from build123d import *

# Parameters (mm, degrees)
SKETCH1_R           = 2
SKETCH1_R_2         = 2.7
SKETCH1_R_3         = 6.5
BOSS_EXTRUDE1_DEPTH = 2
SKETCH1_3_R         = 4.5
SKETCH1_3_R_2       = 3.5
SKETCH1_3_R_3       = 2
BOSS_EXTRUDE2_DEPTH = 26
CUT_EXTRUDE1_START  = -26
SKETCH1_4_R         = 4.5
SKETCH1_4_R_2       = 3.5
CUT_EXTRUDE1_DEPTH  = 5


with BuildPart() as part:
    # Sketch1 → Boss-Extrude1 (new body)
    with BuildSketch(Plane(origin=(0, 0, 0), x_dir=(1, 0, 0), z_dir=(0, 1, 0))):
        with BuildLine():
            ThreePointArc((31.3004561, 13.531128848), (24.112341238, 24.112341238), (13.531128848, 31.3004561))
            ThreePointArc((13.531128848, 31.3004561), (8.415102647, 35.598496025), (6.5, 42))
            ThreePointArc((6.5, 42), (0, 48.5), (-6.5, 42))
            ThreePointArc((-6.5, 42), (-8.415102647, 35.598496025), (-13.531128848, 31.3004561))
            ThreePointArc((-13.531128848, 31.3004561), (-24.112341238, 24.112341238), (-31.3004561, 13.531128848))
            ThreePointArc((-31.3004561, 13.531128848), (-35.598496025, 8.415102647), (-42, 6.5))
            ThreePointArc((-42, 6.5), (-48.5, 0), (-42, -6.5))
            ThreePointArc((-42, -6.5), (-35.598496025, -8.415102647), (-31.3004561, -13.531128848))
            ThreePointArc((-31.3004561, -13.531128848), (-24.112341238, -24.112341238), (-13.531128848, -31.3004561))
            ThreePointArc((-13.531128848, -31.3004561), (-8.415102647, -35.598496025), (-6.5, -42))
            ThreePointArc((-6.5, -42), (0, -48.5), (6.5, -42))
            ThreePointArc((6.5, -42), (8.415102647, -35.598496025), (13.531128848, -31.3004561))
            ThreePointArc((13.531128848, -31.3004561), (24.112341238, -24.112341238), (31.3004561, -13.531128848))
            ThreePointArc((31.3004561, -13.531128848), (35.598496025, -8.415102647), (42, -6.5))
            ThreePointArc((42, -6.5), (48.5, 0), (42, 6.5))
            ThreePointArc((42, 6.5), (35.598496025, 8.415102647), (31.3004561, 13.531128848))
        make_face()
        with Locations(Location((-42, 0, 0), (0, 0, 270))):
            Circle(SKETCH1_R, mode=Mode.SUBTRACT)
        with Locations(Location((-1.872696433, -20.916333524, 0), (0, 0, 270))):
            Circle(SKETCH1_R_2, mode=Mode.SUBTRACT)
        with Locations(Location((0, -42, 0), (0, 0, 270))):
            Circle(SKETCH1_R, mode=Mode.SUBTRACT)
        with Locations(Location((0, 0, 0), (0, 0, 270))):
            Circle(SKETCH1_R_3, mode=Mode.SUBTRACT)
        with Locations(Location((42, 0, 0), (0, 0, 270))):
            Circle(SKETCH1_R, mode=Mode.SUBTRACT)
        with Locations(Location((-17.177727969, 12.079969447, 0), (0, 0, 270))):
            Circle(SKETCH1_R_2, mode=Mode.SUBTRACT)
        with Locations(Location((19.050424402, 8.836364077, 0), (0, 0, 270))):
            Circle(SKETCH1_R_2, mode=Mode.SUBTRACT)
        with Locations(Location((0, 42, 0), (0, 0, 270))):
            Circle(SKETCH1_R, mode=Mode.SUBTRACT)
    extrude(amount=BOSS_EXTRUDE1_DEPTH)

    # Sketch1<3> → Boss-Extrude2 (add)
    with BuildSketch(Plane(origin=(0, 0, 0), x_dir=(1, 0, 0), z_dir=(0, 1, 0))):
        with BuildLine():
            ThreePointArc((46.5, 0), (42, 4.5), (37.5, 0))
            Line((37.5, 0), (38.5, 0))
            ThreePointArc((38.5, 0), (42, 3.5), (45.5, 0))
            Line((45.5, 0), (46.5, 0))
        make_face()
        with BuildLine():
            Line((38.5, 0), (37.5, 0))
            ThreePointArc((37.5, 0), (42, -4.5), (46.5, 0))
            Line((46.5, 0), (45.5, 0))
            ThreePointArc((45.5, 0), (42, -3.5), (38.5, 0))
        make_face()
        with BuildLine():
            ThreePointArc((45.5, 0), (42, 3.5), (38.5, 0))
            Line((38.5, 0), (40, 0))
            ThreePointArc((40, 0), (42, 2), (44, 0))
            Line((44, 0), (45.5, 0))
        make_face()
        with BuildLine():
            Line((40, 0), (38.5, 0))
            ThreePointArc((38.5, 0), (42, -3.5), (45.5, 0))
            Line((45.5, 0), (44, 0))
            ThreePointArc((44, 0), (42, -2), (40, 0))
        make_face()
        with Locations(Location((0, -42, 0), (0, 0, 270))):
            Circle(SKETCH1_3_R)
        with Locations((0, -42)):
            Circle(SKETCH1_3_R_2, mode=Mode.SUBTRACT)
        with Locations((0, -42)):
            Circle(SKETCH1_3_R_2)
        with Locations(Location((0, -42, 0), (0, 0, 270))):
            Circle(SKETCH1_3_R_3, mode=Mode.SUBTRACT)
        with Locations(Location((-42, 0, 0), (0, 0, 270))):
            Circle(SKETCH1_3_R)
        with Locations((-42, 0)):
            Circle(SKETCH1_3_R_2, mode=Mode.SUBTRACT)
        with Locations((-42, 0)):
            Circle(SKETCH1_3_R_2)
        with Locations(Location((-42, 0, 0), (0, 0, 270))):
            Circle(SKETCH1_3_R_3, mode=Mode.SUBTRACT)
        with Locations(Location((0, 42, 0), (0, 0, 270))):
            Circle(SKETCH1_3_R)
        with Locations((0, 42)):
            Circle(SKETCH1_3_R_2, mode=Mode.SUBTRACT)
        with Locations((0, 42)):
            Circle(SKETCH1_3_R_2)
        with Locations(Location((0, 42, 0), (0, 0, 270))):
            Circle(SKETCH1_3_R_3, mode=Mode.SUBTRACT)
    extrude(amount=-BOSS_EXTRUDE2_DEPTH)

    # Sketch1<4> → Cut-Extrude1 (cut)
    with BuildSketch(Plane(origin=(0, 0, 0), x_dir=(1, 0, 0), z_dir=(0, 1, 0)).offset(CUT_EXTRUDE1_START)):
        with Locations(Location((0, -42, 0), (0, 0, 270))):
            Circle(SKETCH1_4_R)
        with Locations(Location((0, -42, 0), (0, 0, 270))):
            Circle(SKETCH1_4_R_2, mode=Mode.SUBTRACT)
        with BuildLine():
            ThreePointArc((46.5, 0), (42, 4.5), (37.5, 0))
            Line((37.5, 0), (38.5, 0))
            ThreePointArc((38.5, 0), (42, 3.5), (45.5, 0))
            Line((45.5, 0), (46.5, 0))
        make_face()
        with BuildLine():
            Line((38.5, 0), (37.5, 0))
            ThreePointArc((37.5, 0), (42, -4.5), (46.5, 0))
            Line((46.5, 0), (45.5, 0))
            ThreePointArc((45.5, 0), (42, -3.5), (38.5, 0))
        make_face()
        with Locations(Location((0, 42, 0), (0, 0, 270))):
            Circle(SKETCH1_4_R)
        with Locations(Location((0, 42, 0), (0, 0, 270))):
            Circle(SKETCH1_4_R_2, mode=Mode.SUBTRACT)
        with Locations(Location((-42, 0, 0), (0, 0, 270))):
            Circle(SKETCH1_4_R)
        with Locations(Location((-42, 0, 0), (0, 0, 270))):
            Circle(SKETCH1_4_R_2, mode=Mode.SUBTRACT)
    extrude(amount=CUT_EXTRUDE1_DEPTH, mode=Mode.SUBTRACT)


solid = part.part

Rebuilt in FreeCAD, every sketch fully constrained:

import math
import FreeCAD as App
import Part
import Sketcher
from FreeCAD import Vector
Q = App.Units.Quantity

doc = App.newDocument("Part")
body = doc.addObject("PartDesign::Body", "Body")

sketch1 = body.newObject("Sketcher::SketchObject", "Sketch")
sketch1.AttachmentSupport = (doc.getObject("XZ_Plane"), [""])
sketch1.MapMode = "FlatFace"
sketch1.addGeometry([
    Part.ArcOfCircle(Part.Circle(Vector(0, 0, 0), Vector(0, 0, 1), 34.1), math.radians(-66.621262), math.radians(-23.378738)),
    Part.ArcOfCircle(Part.Circle(Vector(18.156522, -42, 0), Vector(0, 0, 1), 11.656522), math.radians(113.378738), math.radians(180)),
    Part.ArcOfCircle(Part.Circle(Vector(0, -42, 0), Vector(0, 0, 1), 6.5), math.radians(180), math.radians(360)),
    Part.ArcOfCircle(Part.Circle(Vector(-18.156522, -42, 0), Vector(0, 0, 1), 11.656522), math.radians(0), math.radians(66.621262)),
    Part.ArcOfCircle(Part.Circle(Vector(0, 0, 0), Vector(0, 0, 1), 34.1), math.radians(-156.621262), math.radians(-113.378738)),
    Part.ArcOfCircle(Part.Circle(Vector(-42, -18.156522, 0), Vector(0, 0, 1), 11.656522), math.radians(23.378738), math.radians(90)),
    Part.ArcOfCircle(Part.Circle(Vector(-42, 0, 0), Vector(0, 0, 1), 6.5), math.radians(90), math.radians(270)),
    Part.ArcOfCircle(Part.Circle(Vector(-42, 18.156522, 0), Vector(0, 0, 1), 11.656522), math.radians(-90), math.radians(-23.378738)),
    Part.ArcOfCircle(Part.Circle(Vector(0, 0, 0), Vector(0, 0, 1), 34.1), math.radians(113.378738), math.radians(156.621262)),
    Part.ArcOfCircle(Part.Circle(Vector(-18.156522, 42, 0), Vector(0, 0, 1), 11.656522), math.radians(-66.621262), math.radians(0)),
    Part.ArcOfCircle(Part.Circle(Vector(0, 42, 0), Vector(0, 0, 1), 6.5), math.radians(0), math.radians(180)),
    Part.ArcOfCircle(Part.Circle(Vector(18.156522, 42, 0), Vector(0, 0, 1), 11.656522), math.radians(180), math.radians(246.621262)),
    Part.ArcOfCircle(Part.Circle(Vector(0, 0, 0), Vector(0, 0, 1), 34.1), math.radians(23.378738), math.radians(66.621262)),
    Part.ArcOfCircle(Part.Circle(Vector(42, 18.156522, 0), Vector(0, 0, 1), 11.656522), math.radians(-156.621262), math.radians(-90)),
    Part.ArcOfCircle(Part.Circle(Vector(42, 0, 0), Vector(0, 0, 1), 6.5), math.radians(-90), math.radians(90)),
    Part.ArcOfCircle(Part.Circle(Vector(42, -18.156522, 0), Vector(0, 0, 1), 11.656522), math.radians(90), math.radians(156.621262)),
    Part.Circle(Vector(-1.872696, 20.916334, 0), Vector(0, 0, 1), 2.7),
    Part.Circle(Vector(0, 42, 0), Vector(0, 0, 1), 2),
    Part.Circle(Vector(-42, 0, 0), Vector(0, 0, 1), 2),
    Part.Circle(Vector(-17.177728, -12.079969, 0), Vector(0, 0, 1), 2.7),
    Part.Circle(Vector(0, 0, 0), Vector(0, 0, 1), 6.5),
    Part.Circle(Vector(19.050424, -8.836364, 0), Vector(0, 0, 1), 2.7),
    Part.Circle(Vector(42, 0, 0), Vector(0, 0, 1), 2),
    Part.Circle(Vector(0, -42, 0), Vector(0, 0, 1), 2),
], False)
sketch1.addConstraint([
    Sketcher.Constraint("Tangent", 0, 1, 1, 1),
    Sketcher.Constraint("Tangent", 1, 2, 2, 2),
    Sketcher.Constraint("Tangent", 2, 1, 3, 1),
    Sketcher.Constraint("Tangent", 3, 2, 4, 2),
    Sketcher.Constraint("Tangent", 4, 1, 5, 1),
    Sketcher.Constraint("Tangent", 5, 2, 6, 2),
    Sketcher.Constraint("Tangent", 6, 1, 7, 1),
    Sketcher.Constraint("Tangent", 7, 2, 8, 2),
    Sketcher.Constraint("Tangent", 8, 1, 9, 1),
    Sketcher.Constraint("Tangent", 9, 2, 10, 2),
    Sketcher.Constraint("Tangent", 10, 1, 11, 1),
    Sketcher.Constraint("Tangent", 11, 2, 12, 2),
    Sketcher.Constraint("Tangent", 12, 1, 13, 1),
    Sketcher.Constraint("Tangent", 13, 2, 14, 2),
    Sketcher.Constraint("Tangent", 14, 1, 15, 1),
    Sketcher.Constraint("Tangent", 15, 2, 0, 2),
    Sketcher.Constraint("Coincident", 0, 3, -1, 1),
    Sketcher.Constraint("Coincident", 4, 3, -1, 1),
    Sketcher.Constraint("Coincident", 8, 3, -1, 1),
    Sketcher.Constraint("Coincident", 12, 3, -1, 1),
    Sketcher.Constraint("Coincident", 20, 3, -1, 1),
    Sketcher.Constraint("Coincident", 17, 3, 10, 3),
    Sketcher.Constraint("Coincident", 18, 3, 6, 3),
    Sketcher.Constraint("Coincident", 22, 3, 14, 3),
    Sketcher.Constraint("Coincident", 23, 3, 2, 3),
    Sketcher.Constraint("Equal", 1, 3),
    Sketcher.Constraint("Equal", 0, 4),
    Sketcher.Constraint("Equal", 3, 5),
    Sketcher.Constraint("Equal", 2, 6),
    Sketcher.Constraint("Equal", 5, 7),
    Sketcher.Constraint("Equal", 4, 8),
    Sketcher.Constraint("Equal", 7, 9),
    Sketcher.Constraint("Equal", 6, 10),
    Sketcher.Constraint("Equal", 9, 11),
    Sketcher.Constraint("Equal", 8, 12),
    Sketcher.Constraint("Equal", 11, 13),
    Sketcher.Constraint("Equal", 10, 14),
    Sketcher.Constraint("Equal", 13, 15),
    Sketcher.Constraint("Equal", 17, 18),
    Sketcher.Constraint("Equal", 16, 19),
    Sketcher.Constraint("Equal", 14, 20),
    Sketcher.Constraint("Equal", 19, 21),
    Sketcher.Constraint("Equal", 18, 22),
    Sketcher.Constraint("Equal", 22, 23),
    Sketcher.Constraint("Symmetric", 2, 3, 10, 3, -1, 1),
    Sketcher.Constraint("Symmetric", 6, 3, 14, 3, -1, 1),
    Sketcher.Constraint("PointOnObject", 2, 3, -2),
    Sketcher.Constraint("PointOnObject", 6, 3, -1),
    Sketcher.Constraint("Horizontal", 1, 3, 2, 3),
    Sketcher.Constraint("Vertical", 5, 3, 6, 3),
    Sketcher.Constraint("Diameter", 17, Q("4 mm")),
    Sketcher.Constraint("Diameter", 20, Q("13 mm")),
    Sketcher.Constraint("Diameter", 16, Q("5.4 mm")),
    Sketcher.Constraint("Radius", 0, Q("34.1 mm")),
    Sketcher.Constraint("DistanceY", 1, 3, -1, 1, Q("42 mm")),
    Sketcher.Constraint("DistanceX", 19, 3, 3, 2, Q("3.646599 mm")),
    Sketcher.Constraint("DistanceY", 19, 3, -1, 1, Q("12.079969 mm")),
    Sketcher.Constraint("DistanceX", 21, 3, 12, 1, Q("12.250032 mm")),
    Sketcher.Constraint("DistanceX", 16, 3, -1, 1, Q("1.872696 mm")),
    Sketcher.Constraint("DistanceY", -1, 1, 16, 3, Q("20.916334 mm")),
    Sketcher.Constraint("DistanceY", 21, 3, -1, 1, Q("8.836364 mm")),
])
pad1 = body.newObject("PartDesign::Pad", "Pad")
pad1.Profile = sketch1
pad1.Length = 2
pad1.Reversed = True

sketch2 = body.newObject("Sketcher::SketchObject", "Sketch001")
sketch2.AttachmentSupport = (doc.getObject("XZ_Plane"), [""])
sketch2.MapMode = "FlatFace"
sketch2.addGeometry([
    Part.Circle(Vector(42, 0, 0), Vector(0, 0, 1), 4.5),
    Part.Circle(Vector(42, 0, 0), Vector(0, 0, 1), 2),
    Part.Circle(Vector(0, 42, 0), Vector(0, 0, 1), 4.5),
    Part.Circle(Vector(0, 42, 0), Vector(0, 0, 1), 2),
    Part.Circle(Vector(-42, 0, 0), Vector(0, 0, 1), 4.5),
    Part.Circle(Vector(-42, 0, 0), Vector(0, 0, 1), 2),
    Part.Circle(Vector(0, -42, 0), Vector(0, 0, 1), 4.5),
    Part.Circle(Vector(0, -42, 0), Vector(0, 0, 1), 2),
], False)
sketch2.addConstraint([
    Sketcher.Constraint("Coincident", 1, 3, 0, 3),
    Sketcher.Constraint("Coincident", 3, 3, 2, 3),
    Sketcher.Constraint("Coincident", 5, 3, 4, 3),
    Sketcher.Constraint("Coincident", 7, 3, 6, 3),
    Sketcher.Constraint("Equal", 0, 2),
    Sketcher.Constraint("Equal", 1, 3),
    Sketcher.Constraint("Equal", 2, 4),
    Sketcher.Constraint("Equal", 3, 5),
    Sketcher.Constraint("Equal", 4, 6),
    Sketcher.Constraint("Equal", 5, 7),
    Sketcher.Constraint("Symmetric", 0, 3, 4, 3, -1, 1),
    Sketcher.Constraint("Symmetric", 2, 3, 6, 3, -1, 1),
    Sketcher.Constraint("PointOnObject", 0, 3, -1),
    Sketcher.Constraint("PointOnObject", 2, 3, -2),
    Sketcher.Constraint("Diameter", 0, Q("9 mm")),
    Sketcher.Constraint("Diameter", 1, Q("4 mm")),
    Sketcher.Constraint("DistanceX", -1, 1, 0, 3, Q("42 mm")),
    Sketcher.Constraint("DistanceY", -1, 1, 2, 3, Q("42 mm")),
])
pad2 = body.newObject("PartDesign::Pad", "Pad001")
pad2.Profile = sketch2
pad2.Length = 26

sketch3 = body.newObject("Sketcher::SketchObject", "Sketch002")
sketch3.AttachmentSupport = (doc.getObject("XZ_Plane"), [""])
sketch3.MapMode = "FlatFace"
sketch3.AttachmentOffset = App.Placement(Vector(0, 0, 26), App.Rotation())
sketch3.addGeometry([
    Part.Circle(Vector(0, 42, 0), Vector(0, 0, 1), 4.5),
    Part.Circle(Vector(0, 42, 0), Vector(0, 0, 1), 3.5),
    Part.Circle(Vector(42, 0, 0), Vector(0, 0, 1), 4.5),
    Part.Circle(Vector(42, 0, 0), Vector(0, 0, 1), 3.5),
    Part.Circle(Vector(0, -42, 0), Vector(0, 0, 1), 4.5),
    Part.Circle(Vector(0, -42, 0), Vector(0, 0, 1), 3.5),
    Part.Circle(Vector(-42, 0, 0), Vector(0, 0, 1), 4.5),
    Part.Circle(Vector(-42, 0, 0), Vector(0, 0, 1), 3.5),
], False)
sketch3.addConstraint([
    Sketcher.Constraint("Coincident", 1, 3, 0, 3),
    Sketcher.Constraint("Coincident", 3, 3, 2, 3),
    Sketcher.Constraint("Coincident", 5, 3, 4, 3),
    Sketcher.Constraint("Coincident", 7, 3, 6, 3),
    Sketcher.Constraint("Equal", 0, 2),
    Sketcher.Constraint("Equal", 1, 3),
    Sketcher.Constraint("Equal", 2, 4),
    Sketcher.Constraint("Equal", 3, 5),
    Sketcher.Constraint("Equal", 4, 6),
    Sketcher.Constraint("Equal", 5, 7),
    Sketcher.Constraint("Symmetric", 0, 3, 4, 3, -1, 1),
    Sketcher.Constraint("Symmetric", 2, 3, 6, 3, -1, 1),
    Sketcher.Constraint("PointOnObject", 0, 3, -2),
    Sketcher.Constraint("PointOnObject", 2, 3, -1),
    Sketcher.Constraint("Diameter", 0, Q("9 mm")),
    Sketcher.Constraint("Diameter", 1, Q("7 mm")),
    Sketcher.Constraint("DistanceY", -1, 1, 0, 3, Q("42 mm")),
    Sketcher.Constraint("DistanceX", -1, 1, 2, 3, Q("42 mm")),
])
pocket1 = body.newObject("PartDesign::Pocket", "Pocket")
pocket1.Profile = sketch3
pocket1.Length = 5

doc.recompute()
